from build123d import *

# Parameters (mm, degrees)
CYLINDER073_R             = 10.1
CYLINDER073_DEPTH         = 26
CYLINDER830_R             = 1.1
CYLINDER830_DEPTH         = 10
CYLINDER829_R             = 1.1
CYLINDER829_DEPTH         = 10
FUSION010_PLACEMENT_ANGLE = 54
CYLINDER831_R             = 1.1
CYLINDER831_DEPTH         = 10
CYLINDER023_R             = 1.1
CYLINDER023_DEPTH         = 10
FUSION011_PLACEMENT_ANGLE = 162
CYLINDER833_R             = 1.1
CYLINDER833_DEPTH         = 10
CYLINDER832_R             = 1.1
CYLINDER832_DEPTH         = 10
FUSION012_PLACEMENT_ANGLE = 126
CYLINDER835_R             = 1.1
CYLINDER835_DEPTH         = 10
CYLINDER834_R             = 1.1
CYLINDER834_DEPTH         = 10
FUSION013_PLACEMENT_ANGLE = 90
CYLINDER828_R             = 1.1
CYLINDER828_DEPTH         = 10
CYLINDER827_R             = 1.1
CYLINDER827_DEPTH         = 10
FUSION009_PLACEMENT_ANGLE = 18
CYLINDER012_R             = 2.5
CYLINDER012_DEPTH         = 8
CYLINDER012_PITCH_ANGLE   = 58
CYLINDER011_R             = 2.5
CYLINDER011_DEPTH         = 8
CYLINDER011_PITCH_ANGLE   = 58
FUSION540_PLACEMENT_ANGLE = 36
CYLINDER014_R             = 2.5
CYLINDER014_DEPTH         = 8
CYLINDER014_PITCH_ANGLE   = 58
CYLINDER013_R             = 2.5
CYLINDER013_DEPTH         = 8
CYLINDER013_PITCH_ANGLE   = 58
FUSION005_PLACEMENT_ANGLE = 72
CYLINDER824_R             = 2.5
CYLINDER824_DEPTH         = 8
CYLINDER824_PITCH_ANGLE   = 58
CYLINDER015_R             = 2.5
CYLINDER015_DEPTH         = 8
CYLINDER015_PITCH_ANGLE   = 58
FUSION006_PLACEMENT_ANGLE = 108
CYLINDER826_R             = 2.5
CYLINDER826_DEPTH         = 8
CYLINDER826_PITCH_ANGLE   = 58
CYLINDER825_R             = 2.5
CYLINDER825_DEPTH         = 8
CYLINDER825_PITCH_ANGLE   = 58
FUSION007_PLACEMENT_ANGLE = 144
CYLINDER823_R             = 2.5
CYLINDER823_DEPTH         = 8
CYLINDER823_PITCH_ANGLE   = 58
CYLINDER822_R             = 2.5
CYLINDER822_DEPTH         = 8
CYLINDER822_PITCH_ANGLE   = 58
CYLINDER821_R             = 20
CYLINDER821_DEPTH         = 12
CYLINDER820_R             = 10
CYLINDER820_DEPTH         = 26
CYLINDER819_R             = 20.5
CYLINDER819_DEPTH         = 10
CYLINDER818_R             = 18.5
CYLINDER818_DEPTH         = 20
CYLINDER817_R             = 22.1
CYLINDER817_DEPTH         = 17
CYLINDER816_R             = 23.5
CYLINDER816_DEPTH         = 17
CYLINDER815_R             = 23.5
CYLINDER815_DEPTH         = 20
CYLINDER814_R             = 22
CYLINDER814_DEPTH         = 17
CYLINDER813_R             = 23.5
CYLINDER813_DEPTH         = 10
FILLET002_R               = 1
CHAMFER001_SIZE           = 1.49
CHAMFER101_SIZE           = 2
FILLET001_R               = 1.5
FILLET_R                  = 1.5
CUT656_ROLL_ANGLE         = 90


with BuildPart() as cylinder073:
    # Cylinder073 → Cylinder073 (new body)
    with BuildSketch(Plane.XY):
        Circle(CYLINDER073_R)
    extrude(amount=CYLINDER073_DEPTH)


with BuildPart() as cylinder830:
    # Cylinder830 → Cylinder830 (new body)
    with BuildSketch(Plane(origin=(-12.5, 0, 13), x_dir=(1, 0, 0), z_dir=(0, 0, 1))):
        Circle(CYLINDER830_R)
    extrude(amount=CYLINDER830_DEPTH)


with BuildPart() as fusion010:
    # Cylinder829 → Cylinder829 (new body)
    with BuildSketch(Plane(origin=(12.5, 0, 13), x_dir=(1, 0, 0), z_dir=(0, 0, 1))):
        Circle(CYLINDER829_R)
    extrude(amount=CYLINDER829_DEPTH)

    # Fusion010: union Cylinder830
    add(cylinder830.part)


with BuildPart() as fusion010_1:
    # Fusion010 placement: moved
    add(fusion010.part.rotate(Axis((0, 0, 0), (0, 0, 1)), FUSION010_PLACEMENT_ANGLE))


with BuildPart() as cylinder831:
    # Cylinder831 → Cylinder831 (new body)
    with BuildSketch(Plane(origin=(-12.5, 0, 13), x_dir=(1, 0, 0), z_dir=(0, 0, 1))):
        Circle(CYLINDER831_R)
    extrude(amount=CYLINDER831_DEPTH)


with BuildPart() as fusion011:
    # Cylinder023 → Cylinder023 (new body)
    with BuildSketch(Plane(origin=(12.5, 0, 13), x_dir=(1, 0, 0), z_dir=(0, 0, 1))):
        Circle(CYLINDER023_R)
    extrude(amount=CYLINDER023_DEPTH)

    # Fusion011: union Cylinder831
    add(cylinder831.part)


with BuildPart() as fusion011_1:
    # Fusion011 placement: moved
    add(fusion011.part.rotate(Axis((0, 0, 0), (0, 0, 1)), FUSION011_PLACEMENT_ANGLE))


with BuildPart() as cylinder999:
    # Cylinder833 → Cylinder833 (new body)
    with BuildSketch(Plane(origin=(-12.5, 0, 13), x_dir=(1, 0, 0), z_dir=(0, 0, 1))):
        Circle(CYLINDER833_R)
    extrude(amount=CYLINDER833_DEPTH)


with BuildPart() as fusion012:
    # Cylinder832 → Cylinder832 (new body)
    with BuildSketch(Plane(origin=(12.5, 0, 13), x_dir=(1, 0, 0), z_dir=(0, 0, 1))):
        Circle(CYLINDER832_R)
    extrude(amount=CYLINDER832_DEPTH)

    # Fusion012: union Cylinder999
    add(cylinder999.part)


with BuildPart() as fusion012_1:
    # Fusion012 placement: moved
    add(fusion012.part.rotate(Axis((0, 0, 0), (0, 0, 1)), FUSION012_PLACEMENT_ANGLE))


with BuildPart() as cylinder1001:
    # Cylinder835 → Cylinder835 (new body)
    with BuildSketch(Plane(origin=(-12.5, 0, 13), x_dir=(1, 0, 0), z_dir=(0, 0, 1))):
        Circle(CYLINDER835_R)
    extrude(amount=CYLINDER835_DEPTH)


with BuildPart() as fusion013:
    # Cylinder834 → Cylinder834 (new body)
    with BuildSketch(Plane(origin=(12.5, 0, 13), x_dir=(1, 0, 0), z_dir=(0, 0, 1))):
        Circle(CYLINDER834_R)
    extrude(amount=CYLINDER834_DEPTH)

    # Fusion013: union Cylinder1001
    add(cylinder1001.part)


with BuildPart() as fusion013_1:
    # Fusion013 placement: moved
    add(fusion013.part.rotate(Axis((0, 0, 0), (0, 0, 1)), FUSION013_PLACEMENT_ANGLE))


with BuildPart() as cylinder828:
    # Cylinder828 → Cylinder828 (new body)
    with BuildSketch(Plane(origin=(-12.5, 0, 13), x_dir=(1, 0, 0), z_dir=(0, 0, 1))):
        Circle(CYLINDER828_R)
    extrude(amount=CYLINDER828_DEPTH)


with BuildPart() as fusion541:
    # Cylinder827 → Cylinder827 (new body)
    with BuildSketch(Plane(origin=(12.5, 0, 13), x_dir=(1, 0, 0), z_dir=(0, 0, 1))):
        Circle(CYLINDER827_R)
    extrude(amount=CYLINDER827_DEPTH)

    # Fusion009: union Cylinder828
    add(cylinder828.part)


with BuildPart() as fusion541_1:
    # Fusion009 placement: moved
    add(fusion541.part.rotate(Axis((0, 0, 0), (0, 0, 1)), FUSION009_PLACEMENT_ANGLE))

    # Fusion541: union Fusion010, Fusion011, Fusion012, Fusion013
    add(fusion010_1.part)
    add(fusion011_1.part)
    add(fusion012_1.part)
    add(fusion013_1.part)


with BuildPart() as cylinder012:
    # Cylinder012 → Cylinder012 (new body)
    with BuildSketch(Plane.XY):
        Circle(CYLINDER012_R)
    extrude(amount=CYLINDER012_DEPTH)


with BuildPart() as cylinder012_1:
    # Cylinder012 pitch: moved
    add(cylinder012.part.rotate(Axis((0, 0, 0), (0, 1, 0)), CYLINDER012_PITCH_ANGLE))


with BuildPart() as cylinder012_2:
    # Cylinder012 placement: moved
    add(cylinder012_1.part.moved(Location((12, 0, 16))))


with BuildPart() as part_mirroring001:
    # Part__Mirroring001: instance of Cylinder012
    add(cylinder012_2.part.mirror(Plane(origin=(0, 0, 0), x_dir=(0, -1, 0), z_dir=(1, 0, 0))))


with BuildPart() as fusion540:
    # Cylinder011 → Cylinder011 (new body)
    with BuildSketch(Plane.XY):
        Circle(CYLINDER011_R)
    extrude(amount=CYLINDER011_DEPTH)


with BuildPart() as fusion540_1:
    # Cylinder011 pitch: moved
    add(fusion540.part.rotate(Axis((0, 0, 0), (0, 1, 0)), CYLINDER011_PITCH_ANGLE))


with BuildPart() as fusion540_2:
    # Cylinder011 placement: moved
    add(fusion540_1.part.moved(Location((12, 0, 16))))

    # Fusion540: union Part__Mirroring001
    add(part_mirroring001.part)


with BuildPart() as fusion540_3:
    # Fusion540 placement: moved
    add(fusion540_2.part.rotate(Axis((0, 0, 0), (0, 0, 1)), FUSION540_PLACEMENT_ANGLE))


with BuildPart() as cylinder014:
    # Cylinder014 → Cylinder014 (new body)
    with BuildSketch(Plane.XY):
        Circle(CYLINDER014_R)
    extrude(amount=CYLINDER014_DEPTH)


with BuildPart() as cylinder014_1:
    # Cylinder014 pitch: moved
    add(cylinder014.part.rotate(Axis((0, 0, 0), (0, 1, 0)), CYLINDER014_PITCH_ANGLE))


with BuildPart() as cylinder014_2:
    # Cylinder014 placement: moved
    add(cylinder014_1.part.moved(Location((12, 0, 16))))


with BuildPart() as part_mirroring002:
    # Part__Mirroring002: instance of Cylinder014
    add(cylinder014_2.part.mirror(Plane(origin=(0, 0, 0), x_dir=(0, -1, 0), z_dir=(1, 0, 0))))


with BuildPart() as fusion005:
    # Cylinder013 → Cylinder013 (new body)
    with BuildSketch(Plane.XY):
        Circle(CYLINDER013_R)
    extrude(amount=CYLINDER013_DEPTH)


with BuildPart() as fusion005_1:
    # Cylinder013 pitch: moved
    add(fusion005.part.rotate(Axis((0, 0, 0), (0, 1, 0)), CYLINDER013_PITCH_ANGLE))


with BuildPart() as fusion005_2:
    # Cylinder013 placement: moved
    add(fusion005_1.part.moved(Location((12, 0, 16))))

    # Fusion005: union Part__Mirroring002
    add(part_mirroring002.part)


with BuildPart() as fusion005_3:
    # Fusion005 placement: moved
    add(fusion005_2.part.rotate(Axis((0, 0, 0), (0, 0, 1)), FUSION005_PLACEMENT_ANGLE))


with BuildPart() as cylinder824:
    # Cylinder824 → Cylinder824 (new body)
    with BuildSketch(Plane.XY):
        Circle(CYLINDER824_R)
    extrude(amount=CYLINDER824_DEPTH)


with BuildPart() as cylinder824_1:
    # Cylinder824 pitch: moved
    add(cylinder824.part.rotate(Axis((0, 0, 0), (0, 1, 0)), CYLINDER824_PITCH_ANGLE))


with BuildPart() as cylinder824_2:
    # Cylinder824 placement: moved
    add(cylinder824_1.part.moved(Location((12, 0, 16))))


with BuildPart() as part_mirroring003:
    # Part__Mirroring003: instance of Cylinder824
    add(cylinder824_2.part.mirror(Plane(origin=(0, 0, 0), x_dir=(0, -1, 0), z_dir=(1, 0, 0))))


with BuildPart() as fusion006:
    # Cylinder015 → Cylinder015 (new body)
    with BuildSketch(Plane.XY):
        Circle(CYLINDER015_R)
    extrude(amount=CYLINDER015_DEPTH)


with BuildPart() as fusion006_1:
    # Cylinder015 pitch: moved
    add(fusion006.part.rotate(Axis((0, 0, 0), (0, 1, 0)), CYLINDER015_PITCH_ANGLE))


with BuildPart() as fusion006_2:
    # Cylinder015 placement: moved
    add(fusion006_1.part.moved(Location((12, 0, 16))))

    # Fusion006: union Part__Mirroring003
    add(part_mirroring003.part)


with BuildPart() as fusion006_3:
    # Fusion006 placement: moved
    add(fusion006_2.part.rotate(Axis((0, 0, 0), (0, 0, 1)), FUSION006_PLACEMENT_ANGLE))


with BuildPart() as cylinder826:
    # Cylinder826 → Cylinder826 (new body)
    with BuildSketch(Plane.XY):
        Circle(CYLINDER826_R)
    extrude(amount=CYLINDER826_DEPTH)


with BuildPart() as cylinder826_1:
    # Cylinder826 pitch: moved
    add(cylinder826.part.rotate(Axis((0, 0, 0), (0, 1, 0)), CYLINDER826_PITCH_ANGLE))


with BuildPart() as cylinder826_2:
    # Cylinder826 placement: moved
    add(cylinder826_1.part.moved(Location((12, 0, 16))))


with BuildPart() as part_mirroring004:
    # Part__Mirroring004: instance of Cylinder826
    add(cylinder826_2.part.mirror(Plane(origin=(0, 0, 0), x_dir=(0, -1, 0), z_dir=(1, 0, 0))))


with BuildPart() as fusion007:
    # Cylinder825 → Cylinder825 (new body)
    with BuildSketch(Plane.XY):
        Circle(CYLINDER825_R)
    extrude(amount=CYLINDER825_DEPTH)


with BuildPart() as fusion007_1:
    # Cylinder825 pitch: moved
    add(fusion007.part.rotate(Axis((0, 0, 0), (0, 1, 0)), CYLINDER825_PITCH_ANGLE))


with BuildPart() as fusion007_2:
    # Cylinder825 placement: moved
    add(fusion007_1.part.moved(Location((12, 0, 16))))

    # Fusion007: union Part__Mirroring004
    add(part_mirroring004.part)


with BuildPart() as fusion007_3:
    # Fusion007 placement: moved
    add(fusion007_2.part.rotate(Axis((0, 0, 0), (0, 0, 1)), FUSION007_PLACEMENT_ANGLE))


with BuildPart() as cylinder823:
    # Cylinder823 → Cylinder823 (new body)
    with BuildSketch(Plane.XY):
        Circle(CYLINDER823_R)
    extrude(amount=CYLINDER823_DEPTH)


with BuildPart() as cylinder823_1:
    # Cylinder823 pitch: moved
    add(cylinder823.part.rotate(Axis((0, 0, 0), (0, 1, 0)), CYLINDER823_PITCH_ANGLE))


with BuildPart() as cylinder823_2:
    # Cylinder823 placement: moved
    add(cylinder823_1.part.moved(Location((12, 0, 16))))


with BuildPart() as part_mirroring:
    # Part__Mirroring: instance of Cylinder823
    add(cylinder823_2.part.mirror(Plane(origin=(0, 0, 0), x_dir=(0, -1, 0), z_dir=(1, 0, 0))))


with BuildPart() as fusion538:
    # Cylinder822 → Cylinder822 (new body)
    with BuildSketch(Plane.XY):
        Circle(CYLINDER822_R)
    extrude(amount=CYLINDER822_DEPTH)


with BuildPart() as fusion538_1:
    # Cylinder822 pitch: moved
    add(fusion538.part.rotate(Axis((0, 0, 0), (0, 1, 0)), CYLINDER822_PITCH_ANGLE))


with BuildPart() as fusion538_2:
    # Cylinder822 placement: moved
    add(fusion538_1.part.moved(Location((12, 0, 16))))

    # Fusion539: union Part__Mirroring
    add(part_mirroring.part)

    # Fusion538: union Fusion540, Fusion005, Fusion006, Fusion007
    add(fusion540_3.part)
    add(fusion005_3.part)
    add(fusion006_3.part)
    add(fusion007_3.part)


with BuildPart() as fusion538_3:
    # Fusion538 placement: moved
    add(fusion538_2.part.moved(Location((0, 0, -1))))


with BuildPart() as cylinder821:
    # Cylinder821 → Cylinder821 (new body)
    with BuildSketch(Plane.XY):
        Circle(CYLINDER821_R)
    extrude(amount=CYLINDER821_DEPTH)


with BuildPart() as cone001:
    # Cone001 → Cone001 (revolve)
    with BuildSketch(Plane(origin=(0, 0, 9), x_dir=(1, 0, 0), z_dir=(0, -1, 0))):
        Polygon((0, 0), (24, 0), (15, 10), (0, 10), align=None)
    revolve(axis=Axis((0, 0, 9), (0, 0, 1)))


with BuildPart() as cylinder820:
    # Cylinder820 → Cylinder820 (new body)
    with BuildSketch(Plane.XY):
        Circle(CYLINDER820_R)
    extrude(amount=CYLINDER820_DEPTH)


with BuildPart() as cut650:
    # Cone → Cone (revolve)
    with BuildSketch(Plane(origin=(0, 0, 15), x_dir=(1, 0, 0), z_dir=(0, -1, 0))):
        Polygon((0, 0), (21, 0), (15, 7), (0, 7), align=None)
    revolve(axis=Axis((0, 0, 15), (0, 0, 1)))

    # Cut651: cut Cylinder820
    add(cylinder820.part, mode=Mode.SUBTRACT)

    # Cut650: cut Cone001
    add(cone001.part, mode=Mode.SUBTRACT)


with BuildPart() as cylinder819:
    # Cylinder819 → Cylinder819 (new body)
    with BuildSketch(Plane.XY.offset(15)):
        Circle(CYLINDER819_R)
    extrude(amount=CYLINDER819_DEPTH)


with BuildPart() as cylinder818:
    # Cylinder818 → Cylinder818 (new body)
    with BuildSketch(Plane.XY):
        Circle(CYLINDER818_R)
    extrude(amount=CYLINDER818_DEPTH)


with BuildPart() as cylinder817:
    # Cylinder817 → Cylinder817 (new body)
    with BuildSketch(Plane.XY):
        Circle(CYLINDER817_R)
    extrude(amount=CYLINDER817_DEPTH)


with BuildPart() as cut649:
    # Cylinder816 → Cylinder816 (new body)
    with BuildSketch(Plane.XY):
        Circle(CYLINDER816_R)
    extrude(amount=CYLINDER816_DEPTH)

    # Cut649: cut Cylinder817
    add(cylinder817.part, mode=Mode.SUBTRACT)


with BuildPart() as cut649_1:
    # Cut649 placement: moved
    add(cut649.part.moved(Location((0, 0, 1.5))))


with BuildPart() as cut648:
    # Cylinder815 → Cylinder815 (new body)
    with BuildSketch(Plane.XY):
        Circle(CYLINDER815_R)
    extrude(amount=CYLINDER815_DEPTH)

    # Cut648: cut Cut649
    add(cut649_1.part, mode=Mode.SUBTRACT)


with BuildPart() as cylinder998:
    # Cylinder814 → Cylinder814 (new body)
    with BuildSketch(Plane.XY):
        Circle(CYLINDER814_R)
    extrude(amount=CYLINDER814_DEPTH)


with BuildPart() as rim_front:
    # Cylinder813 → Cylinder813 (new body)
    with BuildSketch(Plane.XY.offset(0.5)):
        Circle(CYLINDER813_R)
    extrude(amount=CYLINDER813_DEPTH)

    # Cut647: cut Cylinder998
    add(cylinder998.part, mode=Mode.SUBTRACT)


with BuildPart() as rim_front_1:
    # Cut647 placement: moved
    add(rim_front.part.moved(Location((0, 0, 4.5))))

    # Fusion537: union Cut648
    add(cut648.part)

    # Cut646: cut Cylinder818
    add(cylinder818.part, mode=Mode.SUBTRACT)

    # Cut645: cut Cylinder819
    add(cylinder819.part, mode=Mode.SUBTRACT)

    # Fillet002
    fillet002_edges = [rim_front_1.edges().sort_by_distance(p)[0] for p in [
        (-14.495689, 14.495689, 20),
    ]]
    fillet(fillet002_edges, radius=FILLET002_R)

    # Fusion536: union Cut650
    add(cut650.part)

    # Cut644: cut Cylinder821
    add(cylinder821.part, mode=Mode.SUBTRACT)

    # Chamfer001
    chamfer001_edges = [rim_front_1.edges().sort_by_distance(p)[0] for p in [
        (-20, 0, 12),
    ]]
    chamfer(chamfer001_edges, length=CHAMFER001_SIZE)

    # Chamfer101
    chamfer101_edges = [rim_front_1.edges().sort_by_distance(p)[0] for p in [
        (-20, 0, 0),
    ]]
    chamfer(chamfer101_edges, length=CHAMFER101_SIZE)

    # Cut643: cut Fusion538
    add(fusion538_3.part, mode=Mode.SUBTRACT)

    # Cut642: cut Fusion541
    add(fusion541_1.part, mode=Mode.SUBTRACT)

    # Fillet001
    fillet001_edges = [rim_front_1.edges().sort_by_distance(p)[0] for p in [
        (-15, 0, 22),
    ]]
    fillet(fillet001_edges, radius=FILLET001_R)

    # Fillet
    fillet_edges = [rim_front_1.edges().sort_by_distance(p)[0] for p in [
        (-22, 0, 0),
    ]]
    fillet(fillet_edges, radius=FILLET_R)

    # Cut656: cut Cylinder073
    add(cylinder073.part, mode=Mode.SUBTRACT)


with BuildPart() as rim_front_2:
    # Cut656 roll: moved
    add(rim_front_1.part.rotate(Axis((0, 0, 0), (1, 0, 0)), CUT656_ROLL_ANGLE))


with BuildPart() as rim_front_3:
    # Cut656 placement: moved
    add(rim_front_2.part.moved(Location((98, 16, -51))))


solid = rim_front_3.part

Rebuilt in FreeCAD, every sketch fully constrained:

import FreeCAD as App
import Part
import Sketcher

V = App.Vector


def edges_at(feature, points):
    """Names of the edges that pass closest to the given points."""
    edges = feature.Shape.Edges
    near = lambda p: min(range(len(edges)), key=lambda i: edges[i].distToShape(Part.Vertex(*p))[0])
    return sorted({f"Edge{near(p) + 1}" for p in points})


def add_polygon(sketch, points):
    """Adds a closed chain of lines whose ends are joined by coincident constraints."""
    first, n = sketch.GeometryCount, len(points)
    for a, b in zip(points, points[1:] + points[:1]):
        sketch.addGeometry(Part.LineSegment(App.Vector(*a, 0), App.Vector(*b, 0)), False)
    for i in range(n):
        sketch.addConstraint(Sketcher.Constraint("Coincident", first + i, 2, first + (i + 1) % n, 1))

doc = App.newDocument("Part")
body = doc.addObject("PartDesign::Body", "Body")

# Sketch on XY plane
sketch1 = body.newObject("Sketcher::SketchObject", "Sketch")
sketch1.AttachmentSupport = (doc.getObject("XY_Plane"), [""])
sketch1.MapMode = "FlatFace"
sketch1.addGeometry(Part.Circle(V(0, 0, 0), V(0, 0, 1), 10.1), False)
sketch1.addConstraint([
    Sketcher.Constraint("Coincident", 0, 3, -1, 1),
    Sketcher.Constraint("Diameter", 0, 20.2),
])
pad1 = body.newObject("PartDesign::Pad", "Pad")
pad1.Profile = sketch1
pad1.Length = 26
body2 = doc.addObject("PartDesign::Body", "Body001")

# Sketch on XY plane
sketch2 = body2.newObject("Sketcher::SketchObject", "Sketch001")
sketch2.AttachmentSupport = (doc.getObject("XY_Plane001"), [""])
sketch2.MapMode = "FlatFace"
sketch2.AttachmentOffset = App.Placement(V(0, 0, 13), App.Rotation())
sketch2.addGeometry(Part.Circle(V(-12.5, 0, 0), V(0, 0, 1), 1.1), False)
sketch2.addConstraint([
    Sketcher.Constraint("PointOnObject", 0, 3, -1),
    Sketcher.Constraint("Diameter", 0, 2.2),
    Sketcher.Constraint("DistanceX", 0, 3, -1, 1, 12.5),
])
pad2 = body2.newObject("PartDesign::Pad", "Pad001")
pad2.Profile = sketch2
pad2.Length = 10
body3 = doc.addObject("PartDesign::Body", "Body002")
body3.AllowCompound = True

# Sketch on XY plane
sketch3 = body3.newObject("Sketcher::SketchObject", "Sketch002")
sketch3.AttachmentSupport = (doc.getObject("XY_Plane002"), [""])
sketch3.MapMode = "FlatFace"
sketch3.AttachmentOffset = App.Placement(V(0, 0, 13), App.Rotation())
sketch3.addGeometry(Part.Circle(V(12.5, 0, 0), V(0, 0, 1), 1.1), False)
sketch3.addConstraint([
    Sketcher.Constraint("PointOnObject", 0, 3, -1),
    Sketcher.Constraint("Diameter", 0, 2.2),
    Sketcher.Constraint("DistanceX", -1, 1, 0, 3, 12.5),
])
pad3 = body3.newObject("PartDesign::Pad", "Pad002")
pad3.Profile = sketch3
pad3.Length = 10
doc.recompute()

boolean = body3.newObject("PartDesign::Boolean", "Boolean")
boolean.Type = "Fuse"
boolean.addObjects([body2])
body4 = doc.addObject("PartDesign::Body", "Body003")
body4.AllowCompound = True
doc.recompute()

body3.Placement = App.Placement(V(0, 0, 0), App.Rotation(V(0, 0, 1), 54))
boolean2 = body4.newObject("PartDesign::Boolean", "Boolean001")
boolean2.Type = "Fuse"
boolean2.addObjects([body3])
body5 = doc.addObject("PartDesign::Body", "Body004")

# Sketch on XY plane
sketch4 = body5.newObject("Sketcher::SketchObject", "Sketch003")
sketch4.AttachmentSupport = (doc.getObject("XY_Plane004"), [""])
sketch4.MapMode = "FlatFace"
sketch4.AttachmentOffset = App.Placement(V(0, 0, 13), App.Rotation())
sketch4.addGeometry(Part.Circle(V(-12.5, 0, 0), V(0, 0, 1), 1.1), False)
sketch4.addConstraint([
    Sketcher.Constraint("PointOnObject", 0, 3, -1),
    Sketcher.Constraint("Diameter", 0, 2.2),
    Sketcher.Constraint("DistanceX", 0, 3, -1, 1, 12.5),
])
pad4 = body5.newObject("PartDesign::Pad", "Pad003")
pad4.Profile = sketch4
pad4.Length = 10
body6 = doc.addObject("PartDesign::Body", "Body005")
body6.AllowCompound = True

# Sketch on XY plane
sketch5 = body6.newObject("Sketcher::SketchObject", "Sketch004")
sketch5.AttachmentSupport = (doc.getObject("XY_Plane005"), [""])
sketch5.MapMode = "FlatFace"
sketch5.AttachmentOffset = App.Placement(V(0, 0, 13), App.Rotation())
sketch5.addGeometry(Part.Circle(V(12.5, 0, 0), V(0, 0, 1), 1.1), False)
sketch5.addConstraint([
    Sketcher.Constraint("PointOnObject", 0, 3, -1),
    Sketcher.Constraint("Diameter", 0, 2.2),
    Sketcher.Constraint("DistanceX", -1, 1, 0, 3, 12.5),
])
pad5 = body6.newObject("PartDesign::Pad", "Pad004")
pad5.Profile = sketch5
pad5.Length = 10
doc.recompute()

boolean3 = body6.newObject("PartDesign::Boolean", "Boolean002")
boolean3.Type = "Fuse"
boolean3.addObjects([body5])
body7 = doc.addObject("PartDesign::Body", "Body006")
body7.AllowCompound = True
doc.recompute()

body6.Placement = App.Placement(V(0, 0, 0), App.Rotation(V(0, 0, 1), 162))
boolean4 = body7.newObject("PartDesign::Boolean", "Boolean003")
boolean4.Type = "Fuse"
boolean4.addObjects([body6])
body8 = doc.addObject("PartDesign::Body", "Body007")

# Sketch on XY plane
sketch6 = body8.newObject("Sketcher::SketchObject", "Sketch005")
sketch6.AttachmentSupport = (doc.getObject("XY_Plane007"), [""])
sketch6.MapMode = "FlatFace"
sketch6.AttachmentOffset = App.Placement(V(0, 0, 13), App.Rotation())
sketch6.addGeometry(Part.Circle(V(-12.5, 0, 0), V(0, 0, 1), 1.1), False)
sketch6.addConstraint([
    Sketcher.Constraint("PointOnObject", 0, 3, -1),
    Sketcher.Constraint("Diameter", 0, 2.2),
    Sketcher.Constraint("DistanceX", 0, 3, -1, 1, 12.5),
])
pad6 = body8.newObject("PartDesign::Pad", "Pad005")
pad6.Profile = sketch6
pad6.Length = 10
body9 = doc.addObject("PartDesign::Body", "Body008")
body9.AllowCompound = True

# Sketch on XY plane
sketch7 = body9.newObject("Sketcher::SketchObject", "Sketch006")
sketch7.AttachmentSupport = (doc.getObject("XY_Plane008"), [""])
sketch7.MapMode = "FlatFace"
sketch7.AttachmentOffset = App.Placement(V(0, 0, 13), App.Rotation())
sketch7.addGeometry(Part.Circle(V(12.5, 0, 0), V(0, 0, 1), 1.1), False)
sketch7.addConstraint([
    Sketcher.Constraint("PointOnObject", 0, 3, -1),
    Sketcher.Constraint("Diameter", 0, 2.2),
    Sketcher.Constraint("DistanceX", -1, 1, 0, 3, 12.5),
])
pad7 = body9.newObject("PartDesign::Pad", "Pad006")
pad7.Profile = sketch7
pad7.Length = 10
doc.recompute()

boolean5 = body9.newObject("PartDesign::Boolean", "Boolean004")
boolean5.Type = "Fuse"
boolean5.addObjects([body8])
body10 = doc.addObject("PartDesign::Body", "Body009")
body10.AllowCompound = True
doc.recompute()

body9.Placement = App.Placement(V(0, 0, 0), App.Rotation(V(0, 0, 1), 126))
boolean6 = body10.newObject("PartDesign::Boolean", "Boolean005")
boolean6.Type = "Fuse"
boolean6.addObjects([body9])
body11 = doc.addObject("PartDesign::Body", "Body010")

# Sketch on XY plane
sketch8 = body11.newObject("Sketcher::SketchObject", "Sketch007")
sketch8.AttachmentSupport = (doc.getObject("XY_Plane010"), [""])
sketch8.MapMode = "FlatFace"
sketch8.AttachmentOffset = App.Placement(V(0, 0, 13), App.Rotation())
sketch8.addGeometry(Part.Circle(V(-12.5, 0, 0), V(0, 0, 1), 1.1), False)
sketch8.addConstraint([
    Sketcher.Constraint("PointOnObject", 0, 3, -1),
    Sketcher.Constraint("Diameter", 0, 2.2),
    Sketcher.Constraint("DistanceX", 0, 3, -1, 1, 12.5),
])
pad8 = body11.newObject("PartDesign::Pad", "Pad007")
pad8.Profile = sketch8
pad8.Length = 10
body12 = doc.addObject("PartDesign::Body", "Body011")
body12.AllowCompound = True

# Sketch on XY plane
sketch9 = body12.newObject("Sketcher::SketchObject", "Sketch008")
sketch9.AttachmentSupport = (doc.getObject("XY_Plane011"), [""])
sketch9.MapMode = "FlatFace"
sketch9.AttachmentOffset = App.Placement(V(0, 0, 13), App.Rotation())
sketch9.addGeometry(Part.Circle(V(12.5, 0, 0), V(0, 0, 1), 1.1), False)
sketch9.addConstraint([
    Sketcher.Constraint("PointOnObject", 0, 3, -1),
    Sketcher.Constraint("Diameter", 0, 2.2),
    Sketcher.Constraint("DistanceX", -1, 1, 0, 3, 12.5),
])
pad9 = body12.newObject("PartDesign::Pad", "Pad008")
pad9.Profile = sketch9
pad9.Length = 10
doc.recompute()

boolean7 = body12.newObject("PartDesign::Boolean", "Boolean006")
boolean7.Type = "Fuse"
boolean7.addObjects([body11])
body13 = doc.addObject("PartDesign::Body", "Body012")
body13.AllowCompound = True
doc.recompute()

body12.Placement = App.Placement(V(0, 0, 0), App.Rotation(V(0, 0, 1), 90))
boolean8 = body13.newObject("PartDesign::Boolean", "Boolean007")
boolean8.Type = "Fuse"
boolean8.addObjects([body12])
body14 = doc.addObject("PartDesign::Body", "Body013")

# Sketch on XY plane
sketch10 = body14.newObject("Sketcher::SketchObject", "Sketch009")
sketch10.AttachmentSupport = (doc.getObject("XY_Plane013"), [""])
sketch10.MapMode = "FlatFace"
sketch10.AttachmentOffset = App.Placement(V(0, 0, 13), App.Rotation())
sketch10.addGeometry(Part.Circle(V(-12.5, 0, 0), V(0, 0, 1), 1.1), False)
sketch10.addConstraint([
    Sketcher.Constraint("PointOnObject", 0, 3, -1),
    Sketcher.Constraint("Diameter", 0, 2.2),
    Sketcher.Constraint("DistanceX", 0, 3, -1, 1, 12.5),
])
pad10 = body14.newObject("PartDesign::Pad", "Pad009")
pad10.Profile = sketch10
pad10.Length = 10
body15 = doc.addObject("PartDesign::Body", "Body014")
body15.AllowCompound = True

# Sketch on XY plane
sketch11 = body15.newObject("Sketcher::SketchObject", "Sketch010")
sketch11.AttachmentSupport = (doc.getObject("XY_Plane014"), [""])
sketch11.MapMode = "FlatFace"
sketch11.AttachmentOffset = App.Placement(V(0, 0, 13), App.Rotation())
sketch11.addGeometry(Part.Circle(V(12.5, 0, 0), V(0, 0, 1), 1.1), False)
sketch11.addConstraint([
    Sketcher.Constraint("PointOnObject", 0, 3, -1),
    Sketcher.Constraint("Diameter", 0, 2.2),
    Sketcher.Constraint("DistanceX", -1, 1, 0, 3, 12.5),
])
pad11 = body15.newObject("PartDesign::Pad", "Pad010")
pad11.Profile = sketch11
pad11.Length = 10
doc.recompute()

boolean9 = body15.newObject("PartDesign::Boolean", "Boolean008")
boolean9.Type = "Fuse"
boolean9.addObjects([body14])
body16 = doc.addObject("PartDesign::Body", "Body015")
body16.AllowCompound = True
doc.recompute()

body15.Placement = App.Placement(V(0, 0, 0), App.Rotation(V(0, 0, 1), 18))
boolean10 = body16.newObject("PartDesign::Boolean", "Boolean009")
boolean10.Type = "Fuse"
boolean10.addObjects([body15])
doc.recompute()

boolean11 = body16.newObject("PartDesign::Boolean", "Boolean010")
boolean11.Type = "Fuse"
boolean11.addObjects([body4])
doc.recompute()

boolean12 = body16.newObject("PartDesign::Boolean", "Boolean011")
boolean12.Type = "Fuse"
boolean12.addObjects([body7])
doc.recompute()

boolean13 = body16.newObject("PartDesign::Boolean", "Boolean012")
boolean13.Type = "Fuse"
boolean13.addObjects([body10])
doc.recompute()

boolean14 = body16.newObject("PartDesign::Boolean", "Boolean013")
boolean14.Type = "Fuse"
boolean14.addObjects([body13])
body17 = doc.addObject("PartDesign::Body", "Body016")

# Sketch on XY plane
sketch12 = body17.newObject("Sketcher::SketchObject", "Sketch011")
sketch12.AttachmentSupport = (doc.getObject("XY_Plane016"), [""])
sketch12.MapMode = "FlatFace"
sketch12.addGeometry(Part.Circle(V(0, 0, 0), V(0, 0, 1), 2.5), False)
sketch12.addConstraint([
    Sketcher.Constraint("Coincident", 0, 3, -1, 1),
    Sketcher.Constraint("Diameter", 0, 5.0),
])
pad12 = body17.newObject("PartDesign::Pad", "Pad011")
pad12.Profile = sketch12
pad12.Length = 8
body18 = doc.addObject("PartDesign::Body", "Body017")
doc.recompute()

body17.Placement = App.Placement(V(0, 0, 0), App.Rotation(V(0, 1, 0), 58))
boolean15 = body18.newObject("PartDesign::Boolean", "Boolean014")
boolean15.Type = "Fuse"
boolean15.addObjects([body17])
body19 = doc.addObject("PartDesign::Body", "Body018")
doc.recompute()

body18.Placement = App.Placement(V(12, 0, 16), App.Rotation(V(0, 0, 1), 0))
boolean16 = body19.newObject("PartDesign::Boolean", "Boolean015")
boolean16.Type = "Fuse"
boolean16.addObjects([body18])
body20 = doc.addObject("PartDesign::Body", "Body019")
doc.recompute()

mirroring = doc.addObject("Part::Mirroring", "Mirroring")
mirroring.Source = body19
mirroring.Base = V(0, 0, 0)
mirroring.Normal = V(1, 0, 0)
body20.BaseFeature = mirroring
doc.recompute()
body21 = doc.addObject("PartDesign::Body", "Body020")

# Sketch on XY plane
sketch13 = body21.newObject("Sketcher::SketchObject", "Sketch012")
sketch13.AttachmentSupport = (doc.getObject("XY_Plane020"), [""])
sketch13.MapMode = "FlatFace"
sketch13.addGeometry(Part.Circle(V(0, 0, 0), V(0, 0, 1), 2.5), False)
sketch13.addConstraint([
    Sketcher.Constraint("Coincident", 0, 3, -1, 1),
    Sketcher.Constraint("Diameter", 0, 5.0),
])
pad13 = body21.newObject("PartDesign::Pad", "Pad012")
pad13.Profile = sketch13
pad13.Length = 8
body22 = doc.addObject("PartDesign::Body", "Body021")
doc.recompute()

body21.Placement = App.Placement(V(0, 0, 0), App.Rotation(V(0, 1, 0), 58))
boolean17 = body22.newObject("PartDesign::Boolean", "Boolean016")
boolean17.Type = "Fuse"
boolean17.addObjects([body21])
body23 = doc.addObject("PartDesign::Body", "Body022")
body23.AllowCompound = True
doc.recompute()

body22.Placement = App.Placement(V(12, 0, 16), App.Rotation(V(0, 0, 1), 0))
boolean18 = body23.newObject("PartDesign::Boolean", "Boolean017")
boolean18.Type = "Fuse"
boolean18.addObjects([body22])
doc.recompute()

boolean19 = body23.newObject("PartDesign::Boolean", "Boolean018")
boolean19.Type = "Fuse"
boolean19.addObjects([body20])
body24 = doc.addObject("PartDesign::Body", "Body023")
body24.AllowCompound = True
doc.recompute()

body23.Placement = App.Placement(V(0, 0, 0), App.Rotation(V(0, 0, 1), 36))
boolean20 = body24.newObject("PartDesign::Boolean", "Boolean019")
boolean20.Type = "Fuse"
boolean20.addObjects([body23])
body25 = doc.addObject("PartDesign::Body", "Body024")

# Sketch on XY plane
sketch14 = body25.newObject("Sketcher::SketchObject", "Sketch013")
sketch14.AttachmentSupport = (doc.getObject("XY_Plane024"), [""])
sketch14.MapMode = "FlatFace"
sketch14.addGeometry(Part.Circle(V(0, 0, 0), V(0, 0, 1), 2.5), False)
sketch14.addConstraint([
    Sketcher.Constraint("Coincident", 0, 3, -1, 1),
    Sketcher.Constraint("Diameter", 0, 5.0),
])
pad14 = body25.newObject("PartDesign::Pad", "Pad013")
pad14.Profile = sketch14
pad14.Length = 8
body26 = doc.addObject("PartDesign::Body", "Body025")
doc.recompute()

body25.Placement = App.Placement(V(0, 0, 0), App.Rotation(V(0, 1, 0), 58))
boolean21 = body26.newObject("PartDesign::Boolean", "Boolean020")
boolean21.Type = "Fuse"
boolean21.addObjects([body25])
body27 = doc.addObject("PartDesign::Body", "Body026")
doc.recompute()

body26.Placement = App.Placement(V(12, 0, 16), App.Rotation(V(0, 0, 1), 0))
boolean22 = body27.newObject("PartDesign::Boolean", "Boolean021")
boolean22.Type = "Fuse"
boolean22.addObjects([body26])
body28 = doc.addObject("PartDesign::Body", "Body027")
doc.recompute()

mirroring2 = doc.addObject("Part::Mirroring", "Mirroring001")
mirroring2.Source = body27
mirroring2.Base = V(0, 0, 0)
mirroring2.Normal = V(1, 0, 0)
body28.BaseFeature = mirroring2
doc.recompute()
body29 = doc.addObject("PartDesign::Body", "Body028")

# Sketch on XY plane
sketch15 = body29.newObject("Sketcher::SketchObject", "Sketch014")
sketch15.AttachmentSupport = (doc.getObject("XY_Plane028"), [""])
sketch15.MapMode = "FlatFace"
sketch15.addGeometry(Part.Circle(V(0, 0, 0), V(0, 0, 1), 2.5), False)
sketch15.addConstraint([
    Sketcher.Constraint("Coincident", 0, 3, -1, 1),
    Sketcher.Constraint("Diameter", 0, 5.0),
])
pad15 = body29.newObject("PartDesign::Pad", "Pad014")
pad15.Profile = sketch15
pad15.Length = 8
body30 = doc.addObject("PartDesign::Body", "Body029")
doc.recompute()

body29.Placement = App.Placement(V(0, 0, 0), App.Rotation(V(0, 1, 0), 58))
boolean23 = body30.newObject("PartDesign::Boolean", "Boolean022")
boolean23.Type = "Fuse"
boolean23.addObjects([body29])
body31 = doc.addObject("PartDesign::Body", "Body030")
body31.AllowCompound = True
doc.recompute()

body30.Placement = App.Placement(V(12, 0, 16), App.Rotation(V(0, 0, 1), 0))
boolean24 = body31.newObject("PartDesign::Boolean", "Boolean023")
boolean24.Type = "Fuse"
boolean24.addObjects([body30])
doc.recompute()

boolean25 = body31.newObject("PartDesign::Boolean", "Boolean024")
boolean25.Type = "Fuse"
boolean25.addObjects([body28])
body32 = doc.addObject("PartDesign::Body", "Body031")
body32.AllowCompound = True
doc.recompute()

body31.Placement = App.Placement(V(0, 0, 0), App.Rotation(V(0, 0, 1), 72))
boolean26 = body32.newObject("PartDesign::Boolean", "Boolean025")
boolean26.Type = "Fuse"
boolean26.addObjects([body31])
body33 = doc.addObject("PartDesign::Body", "Body032")

# Sketch on XY plane
sketch16 = body33.newObject("Sketcher::SketchObject", "Sketch015")
sketch16.AttachmentSupport = (doc.getObject("XY_Plane032"), [""])
sketch16.MapMode = "FlatFace"
sketch16.addGeometry(Part.Circle(V(0, 0, 0), V(0, 0, 1), 2.5), False)
sketch16.addConstraint([
    Sketcher.Constraint("Coincident", 0, 3, -1, 1),
    Sketcher.Constraint("Diameter", 0, 5.0),
])
pad16 = body33.newObject("PartDesign::Pad", "Pad015")
pad16.Profile = sketch16
pad16.Length = 8
body34 = doc.addObject("PartDesign::Body", "Body033")
doc.recompute()

body33.Placement = App.Placement(V(0, 0, 0), App.Rotation(V(0, 1, 0), 58))
boolean27 = body34.newObject("PartDesign::Boolean", "Boolean026")
boolean27.Type = "Fuse"
boolean27.addObjects([body33])
body35 = doc.addObject("PartDesign::Body", "Body034")
doc.recompute()

body34.Placement = App.Placement(V(12, 0, 16), App.Rotation(V(0, 0, 1), 0))
boolean28 = body35.newObject("PartDesign::Boolean", "Boolean027")
boolean28.Type = "Fuse"
boolean28.addObjects([body34])
body36 = doc.addObject("PartDesign::Body", "Body035")
doc.recompute()

mirroring3 = doc.addObject("Part::Mirroring", "Mirroring002")
mirroring3.Source = body35
mirroring3.Base = V(0, 0, 0)
mirroring3.Normal = V(1, 0, 0)
body36.BaseFeature = mirroring3
doc.recompute()
body37 = doc.addObject("PartDesign::Body", "Body036")

# Sketch on XY plane
sketch17 = body37.newObject("Sketcher::SketchObject", "Sketch016")
sketch17.AttachmentSupport = (doc.getObject("XY_Plane036"), [""])
sketch17.MapMode = "FlatFace"
sketch17.addGeometry(Part.Circle(V(0, 0, 0), V(0, 0, 1), 2.5), False)
sketch17.addConstraint([
    Sketcher.Constraint("Coincident", 0, 3, -1, 1),
    Sketcher.Constraint("Diameter", 0, 5.0),
])
pad17 = body37.newObject("PartDesign::Pad", "Pad016")
pad17.Profile = sketch17
pad17.Length = 8
body38 = doc.addObject("PartDesign::Body", "Body037")
doc.recompute()

body37.Placement = App.Placement(V(0, 0, 0), App.Rotation(V(0, 1, 0), 58))
boolean29 = body38.newObject("PartDesign::Boolean", "Boolean028")
boolean29.Type = "Fuse"
boolean29.addObjects([body37])
body39 = doc.addObject("PartDesign::Body", "Body038")
body39.AllowCompound = True
doc.recompute()

body38.Placement = App.Placement(V(12, 0, 16), App.Rotation(V(0, 0, 1), 0))
boolean30 = body39.newObject("PartDesign::Boolean", "Boolean029")
boolean30.Type = "Fuse"
boolean30.addObjects([body38])
doc.recompute()

boolean31 = body39.newObject("PartDesign::Boolean", "Boolean030")
boolean31.Type = "Fuse"
boolean31.addObjects([body36])
body40 = doc.addObject("PartDesign::Body", "Body039")
body40.AllowCompound = True
doc.recompute()

body39.Placement = App.Placement(V(0, 0, 0), App.Rotation(V(0, 0, 1), 108))
boolean32 = body40.newObject("PartDesign::Boolean", "Boolean031")
boolean32.Type = "Fuse"
boolean32.addObjects([body39])
body41 = doc.addObject("PartDesign::Body", "Body040")

# Sketch on XY plane
sketch18 = body41.newObject("Sketcher::SketchObject", "Sketch017")
sketch18.AttachmentSupport = (doc.getObject("XY_Plane040"), [""])
sketch18.MapMode = "FlatFace"
sketch18.addGeometry(Part.Circle(V(0, 0, 0), V(0, 0, 1), 2.5), False)
sketch18.addConstraint([
    Sketcher.Constraint("Coincident", 0, 3, -1, 1),
    Sketcher.Constraint("Diameter", 0, 5.0),
])
pad18 = body41.newObject("PartDesign::Pad", "Pad017")
pad18.Profile = sketch18
pad18.Length = 8
body42 = doc.addObject("PartDesign::Body", "Body041")
doc.recompute()

body41.Placement = App.Placement(V(0, 0, 0), App.Rotation(V(0, 1, 0), 58))
boolean33 = body42.newObject("PartDesign::Boolean", "Boolean032")
boolean33.Type = "Fuse"
boolean33.addObjects([body41])
body43 = doc.addObject("PartDesign::Body", "Body042")
doc.recompute()

body42.Placement = App.Placement(V(12, 0, 16), App.Rotation(V(0, 0, 1), 0))
boolean34 = body43.newObject("PartDesign::Boolean", "Boolean033")
boolean34.Type = "Fuse"
boolean34.addObjects([body42])
body44 = doc.addObject("PartDesign::Body", "Body043")
doc.recompute()

mirroring4 = doc.addObject("Part::Mirroring", "Mirroring003")
mirroring4.Source = body43
mirroring4.Base = V(0, 0, 0)
mirroring4.Normal = V(1, 0, 0)
body44.BaseFeature = mirroring4
doc.recompute()
body45 = doc.addObject("PartDesign::Body", "Body044")

# Sketch on XY plane
sketch19 = body45.newObject("Sketcher::SketchObject", "Sketch018")
sketch19.AttachmentSupport = (doc.getObject("XY_Plane044"), [""])
sketch19.MapMode = "FlatFace"
sketch19.addGeometry(Part.Circle(V(0, 0, 0), V(0, 0, 1), 2.5), False)
sketch19.addConstraint([
    Sketcher.Constraint("Coincident", 0, 3, -1, 1),
    Sketcher.Constraint("Diameter", 0, 5.0),
])
pad19 = body45.newObject("PartDesign::Pad", "Pad018")
pad19.Profile = sketch19
pad19.Length = 8
body46 = doc.addObject("PartDesign::Body", "Body045")
doc.recompute()

body45.Placement = App.Placement(V(0, 0, 0), App.Rotation(V(0, 1, 0), 58))
boolean35 = body46.newObject("PartDesign::Boolean", "Boolean034")
boolean35.Type = "Fuse"
boolean35.addObjects([body45])
body47 = doc.addObject("PartDesign::Body", "Body046")
body47.AllowCompound = True
doc.recompute()

body46.Placement = App.Placement(V(12, 0, 16), App.Rotation(V(0, 0, 1), 0))
boolean36 = body47.newObject("PartDesign::Boolean", "Boolean035")
boolean36.Type = "Fuse"
boolean36.addObjects([body46])
doc.recompute()

boolean37 = body47.newObject("PartDesign::Boolean", "Boolean036")
boolean37.Type = "Fuse"
boolean37.addObjects([body44])
body48 = doc.addObject("PartDesign::Body", "Body047")
body48.AllowCompound = True
doc.recompute()

body47.Placement = App.Placement(V(0, 0, 0), App.Rotation(V(0, 0, 1), 144))
boolean38 = body48.newObject("PartDesign::Boolean", "Boolean037")
boolean38.Type = "Fuse"
boolean38.addObjects([body47])
body49 = doc.addObject("PartDesign::Body", "Body048")

# Sketch on XY plane
sketch20 = body49.newObject("Sketcher::SketchObject", "Sketch019")
sketch20.AttachmentSupport = (doc.getObject("XY_Plane048"), [""])
sketch20.MapMode = "FlatFace"
sketch20.addGeometry(Part.Circle(V(0, 0, 0), V(0, 0, 1), 2.5), False)
sketch20.addConstraint([
    Sketcher.Constraint("Coincident", 0, 3, -1, 1),
    Sketcher.Constraint("Diameter", 0, 5.0),
])
pad20 = body49.newObject("PartDesign::Pad", "Pad019")
pad20.Profile = sketch20
pad20.Length = 8
body50 = doc.addObject("PartDesign::Body", "Body049")
doc.recompute()

body49.Placement = App.Placement(V(0, 0, 0), App.Rotation(V(0, 1, 0), 58))
boolean39 = body50.newObject("PartDesign::Boolean", "Boolean038")
boolean39.Type = "Fuse"
boolean39.addObjects([body49])
body51 = doc.addObject("PartDesign::Body", "Body050")
doc.recompute()

body50.Placement = App.Placement(V(12, 0, 16), App.Rotation(V(0, 0, 1), 0))
boolean40 = body51.newObject("PartDesign::Boolean", "Boolean039")
boolean40.Type = "Fuse"
boolean40.addObjects([body50])
body52 = doc.addObject("PartDesign::Body", "Body051")
doc.recompute()

mirroring5 = doc.addObject("Part::Mirroring", "Mirroring004")
mirroring5.Source = body51
mirroring5.Base = V(0, 0, 0)
mirroring5.Normal = V(1, 0, 0)
body52.BaseFeature = mirroring5
doc.recompute()
body53 = doc.addObject("PartDesign::Body", "Body052")

# Sketch on XY plane
sketch21 = body53.newObject("Sketcher::SketchObject", "Sketch020")
sketch21.AttachmentSupport = (doc.getObject("XY_Plane052"), [""])
sketch21.MapMode = "FlatFace"
sketch21.addGeometry(Part.Circle(V(0, 0, 0), V(0, 0, 1), 2.5), False)
sketch21.addConstraint([
    Sketcher.Constraint("Coincident", 0, 3, -1, 1),
    Sketcher.Constraint("Diameter", 0, 5.0),
])
pad21 = body53.newObject("PartDesign::Pad", "Pad020")
pad21.Profile = sketch21
pad21.Length = 8
body54 = doc.addObject("PartDesign::Body", "Body053")
doc.recompute()

body53.Placement = App.Placement(V(0, 0, 0), App.Rotation(V(0, 1, 0), 58))
boolean41 = body54.newObject("PartDesign::Boolean", "Boolean040")
boolean41.Type = "Fuse"
boolean41.addObjects([body53])
body55 = doc.addObject("PartDesign::Body", "Body054")
body55.AllowCompound = True
doc.recompute()

body54.Placement = App.Placement(V(12, 0, 16), App.Rotation(V(0, 0, 1), 0))
boolean42 = body55.newObject("PartDesign::Boolean", "Boolean041")
boolean42.Type = "Fuse"
boolean42.addObjects([body54])
doc.recompute()

boolean43 = body55.newObject("PartDesign::Boolean", "Boolean042")
boolean43.Type = "Fuse"
boolean43.addObjects([body52])
doc.recompute()

boolean44 = body55.newObject("PartDesign::Boolean", "Boolean043")
boolean44.Type = "Fuse"
boolean44.addObjects([body24])
doc.recompute()

boolean45 = body55.newObject("PartDesign::Boolean", "Boolean044")
boolean45.Type = "Fuse"
boolean45.addObjects([body32])
doc.recompute()

boolean46 = body55.newObject("PartDesign::Boolean", "Boolean045")
boolean46.Type = "Fuse"
boolean46.addObjects([body40])
doc.recompute()

boolean47 = body55.newObject("PartDesign::Boolean", "Boolean046")
boolean47.Type = "Fuse"
boolean47.addObjects([body48])
body56 = doc.addObject("PartDesign::Body", "Body055")
body56.AllowCompound = True
doc.recompute()

body55.Placement = App.Placement(V(0, 0, -1), App.Rotation(V(0, 0, 1), 0))
boolean48 = body56.newObject("PartDesign::Boolean", "Boolean047")
boolean48.Type = "Fuse"
boolean48.addObjects([body55])
body57 = doc.addObject("PartDesign::Body", "Body056")

# Sketch on XY plane
sketch22 = body57.newObject("Sketcher::SketchObject", "Sketch021")
sketch22.AttachmentSupport = (doc.getObject("XY_Plane056"), [""])
sketch22.MapMode = "FlatFace"
sketch22.addGeometry(Part.Circle(V(0, 0, 0), V(0, 0, 1), 20), False)
sketch22.addConstraint([
    Sketcher.Constraint("Coincident", 0, 3, -1, 1),
    Sketcher.Constraint("Diameter", 0, 40.0),
])
pad22 = body57.newObject("PartDesign::Pad", "Pad021")
pad22.Profile = sketch22
pad22.Length = 12
body58 = doc.addObject("PartDesign::Body", "Body057")

# Sketch on XZ plane
sketch23 = body58.newObject("Sketcher::SketchObject", "Sketch022")
sketch23.AttachmentSupport = (doc.getObject("XZ_Plane057"), [""])
sketch23.MapMode = "FlatFace"
add_polygon(sketch23, [(0, 9), (24, 9), (15, 19), (0, 19)])  # lines 0-3
sketch23.addConstraint([
    Sketcher.Constraint("Horizontal", 0),
    Sketcher.Constraint("Horizontal", 2),
    Sketcher.Constraint("Vertical", 3),
    Sketcher.Constraint("PointOnObject", 2, 2, -2),
    Sketcher.Constraint("DistanceX", 0, 1, 0, 2, 24.0),
    Sketcher.Constraint("DistanceX", 2, 2, 2, 1, 15.0),
    Sketcher.Constraint("DistanceY", 3, 2, 3, 1, 10.0),
    Sketcher.Constraint("DistanceY", -1, 1, 0, 2, 9.0),
])
revolution = body58.newObject("PartDesign::Revolution", "Revolution")
revolution.Profile = sketch23
revolution.ReferenceAxis = (sketch23, ["V_Axis"])
revolution.Angle = 360
body59 = doc.addObject("PartDesign::Body", "Body058")

# Sketch on XY plane
sketch24 = body59.newObject("Sketcher::SketchObject", "Sketch023")
sketch24.AttachmentSupport = (doc.getObject("XY_Plane058"), [""])
sketch24.MapMode = "FlatFace"
sketch24.addGeometry(Part.Circle(V(0, 0, 0), V(0, 0, 1), 10), False)
sketch24.addConstraint([
    Sketcher.Constraint("Coincident", 0, 3, -1, 1),
    Sketcher.Constraint("Diameter", 0, 20.0),
])
pad23 = body59.newObject("PartDesign::Pad", "Pad022")
pad23.Profile = sketch24
pad23.Length = 26
body60 = doc.addObject("PartDesign::Body", "Body059")

# Sketch on XZ plane
sketch25 = body60.newObject("Sketcher::SketchObject", "Sketch024")
sketch25.AttachmentSupport = (doc.getObject("XZ_Plane059"), [""])
sketch25.MapMode = "FlatFace"
add_polygon(sketch25, [(0, 15), (21, 15), (15, 22), (0, 22)])  # lines 0-3
sketch25.addConstraint([
    Sketcher.Constraint("Horizontal", 0),
    Sketcher.Constraint("Horizontal", 2),
    Sketcher.Constraint("Vertical", 3),
    Sketcher.Constraint("PointOnObject", 2, 2, -2),
    Sketcher.Constraint("DistanceX", 0, 1, 0, 2, 21.0),
    Sketcher.Constraint("DistanceX", 2, 2, 2, 1, 15.0),
    Sketcher.Constraint("DistanceY", 3, 2, 3, 1, 7.0),
    Sketcher.Constraint("DistanceY", -1, 1, 0, 2, 15.0),
])
revolution2 = body60.newObject("PartDesign::Revolution", "Revolution001")
revolution2.Profile = sketch25
revolution2.ReferenceAxis = (sketch25, ["V_Axis"])
revolution2.Angle = 360
doc.recompute()

boolean49 = body60.newObject("PartDesign::Boolean", "Boolean048")
boolean49.Type = "Cut"
boolean49.addObjects([body59])
doc.recompute()

boolean50 = body60.newObject("PartDesign::Boolean", "Boolean049")
boolean50.Type = "Cut"
boolean50.addObjects([body58])
body61 = doc.addObject("PartDesign::Body", "Body060")

# Sketch on XY plane
sketch26 = body61.newObject("Sketcher::SketchObject", "Sketch025")
sketch26.AttachmentSupport = (doc.getObject("XY_Plane060"), [""])
sketch26.MapMode = "FlatFace"
sketch26.AttachmentOffset = App.Placement(V(0, 0, 15), App.Rotation())
sketch26.addGeometry(Part.Circle(V(0, 0, 0), V(0, 0, 1), 20.5), False)
sketch26.addConstraint([
    Sketcher.Constraint("Coincident", 0, 3, -1, 1),
    Sketcher.Constraint("Diameter", 0, 41.0),
])
pad24 = body61.newObject("PartDesign::Pad", "Pad023")
pad24.Profile = sketch26
pad24.Length = 10
body62 = doc.addObject("PartDesign::Body", "Body061")

# Sketch on XY plane
sketch27 = body62.newObject("Sketcher::SketchObject", "Sketch026")
sketch27.AttachmentSupport = (doc.getObject("XY_Plane061"), [""])
sketch27.MapMode = "FlatFace"
sketch27.addGeometry(Part.Circle(V(0, 0, 0), V(0, 0, 1), 18.5), False)
sketch27.addConstraint([
    Sketcher.Constraint("Coincident", 0, 3, -1, 1),
    Sketcher.Constraint("Diameter", 0, 37.0),
])
pad25 = body62.newObject("PartDesign::Pad", "Pad024")
pad25.Profile = sketch27
pad25.Length = 20
body63 = doc.addObject("PartDesign::Body", "Body062")

# Sketch on XY plane
sketch28 = body63.newObject("Sketcher::SketchObject", "Sketch027")
sketch28.AttachmentSupport = (doc.getObject("XY_Plane062"), [""])
sketch28.MapMode = "FlatFace"
sketch28.addGeometry(Part.Circle(V(0, 0, 0), V(0, 0, 1), 22.1), False)
sketch28.addConstraint([
    Sketcher.Constraint("Coincident", 0, 3, -1, 1),
    Sketcher.Constraint("Diameter", 0, 44.2),
])
pad26 = body63.newObject("PartDesign::Pad", "Pad025")
pad26.Profile = sketch28
pad26.Length = 17
body64 = doc.addObject("PartDesign::Body", "Body063")

# Sketch on XY plane
sketch29 = body64.newObject("Sketcher::SketchObject", "Sketch028")
sketch29.AttachmentSupport = (doc.getObject("XY_Plane063"), [""])
sketch29.MapMode = "FlatFace"
sketch29.addGeometry(Part.Circle(V(0, 0, 0), V(0, 0, 1), 23.5), False)
sketch29.addConstraint([
    Sketcher.Constraint("Coincident", 0, 3, -1, 1),
    Sketcher.Constraint("Diameter", 0, 47.0),
])
pad27 = body64.newObject("PartDesign::Pad", "Pad026")
pad27.Profile = sketch29
pad27.Length = 17
doc.recompute()

boolean51 = body64.newObject("PartDesign::Boolean", "Boolean050")
boolean51.Type = "Cut"
boolean51.addObjects([body63])
body65 = doc.addObject("PartDesign::Body", "Body064")
doc.recompute()

body64.Placement = App.Placement(V(0, 0, 1.5), App.Rotation(V(0, 0, 1), 0))
boolean52 = body65.newObject("PartDesign::Boolean", "Boolean051")
boolean52.Type = "Fuse"
boolean52.addObjects([body64])
body66 = doc.addObject("PartDesign::Body", "Body065")

# Sketch on XY plane
sketch30 = body66.newObject("Sketcher::SketchObject", "Sketch029")
sketch30.AttachmentSupport = (doc.getObject("XY_Plane065"), [""])
sketch30.MapMode = "FlatFace"
sketch30.addGeometry(Part.Circle(V(0, 0, 0), V(0, 0, 1), 23.5), False)
sketch30.addConstraint([
    Sketcher.Constraint("Coincident", 0, 3, -1, 1),
    Sketcher.Constraint("Diameter", 0, 47.0),
])
pad28 = body66.newObject("PartDesign::Pad", "Pad027")
pad28.Profile = sketch30
pad28.Length = 20
doc.recompute()

boolean53 = body66.newObject("PartDesign::Boolean", "Boolean052")
boolean53.Type = "Cut"
boolean53.addObjects([body65])
body67 = doc.addObject("PartDesign::Body", "Body066")

# Sketch on XY plane
sketch31 = body67.newObject("Sketcher::SketchObject", "Sketch030")
sketch31.AttachmentSupport = (doc.getObject("XY_Plane066"), [""])
sketch31.MapMode = "FlatFace"
sketch31.addGeometry(Part.Circle(V(0, 0, 0), V(0, 0, 1), 22), False)
sketch31.addConstraint([
    Sketcher.Constraint("Coincident", 0, 3, -1, 1),
    Sketcher.Constraint("Diameter", 0, 44.0),
])
pad29 = body67.newObject("PartDesign::Pad", "Pad028")
pad29.Profile = sketch31
pad29.Length = 17
body68 = doc.addObject("PartDesign::Body", "Body067")

# Sketch on XY plane
sketch32 = body68.newObject("Sketcher::SketchObject", "Sketch031")
sketch32.AttachmentSupport = (doc.getObject("XY_Plane067"), [""])
sketch32.MapMode = "FlatFace"
sketch32.AttachmentOffset = App.Placement(V(0, 0, 0.5), App.Rotation())
sketch32.addGeometry(Part.Circle(V(0, 0, 0), V(0, 0, 1), 23.5), False)
sketch32.addConstraint([
    Sketcher.Constraint("Coincident", 0, 3, -1, 1),
    Sketcher.Constraint("Diameter", 0, 47.0),
])
pad30 = body68.newObject("PartDesign::Pad", "Pad029")
pad30.Profile = sketch32
pad30.Length = 10
doc.recompute()

boolean54 = body68.newObject("PartDesign::Boolean", "Boolean053")
boolean54.Type = "Cut"
boolean54.addObjects([body67])
body69 = doc.addObject("PartDesign::Body", "Body068")
doc.recompute()

body68.Placement = App.Placement(V(0, 0, 4.5), App.Rotation(V(0, 0, 1), 0))
boolean55 = body69.newObject("PartDesign::Boolean", "Boolean054")
boolean55.Type = "Fuse"
boolean55.addObjects([body68])
doc.recompute()

boolean56 = body69.newObject("PartDesign::Boolean", "Boolean055")
boolean56.Type = "Fuse"
boolean56.addObjects([body66])
doc.recompute()

boolean57 = body69.newObject("PartDesign::Boolean", "Boolean056")
boolean57.Type = "Cut"
boolean57.addObjects([body62])
doc.recompute()

boolean58 = body69.newObject("PartDesign::Boolean", "Boolean057")
boolean58.Type = "Cut"
boolean58.addObjects([body61])
doc.recompute()

fillet = body69.newObject("PartDesign::Fillet", "Fillet")
fillet.Base = (boolean58, edges_at(boolean58, [(-20.5, 0, 20)]))
fillet.Radius = 1
doc.recompute()

boolean59 = body69.newObject("PartDesign::Boolean", "Boolean058")
boolean59.Type = "Fuse"
boolean59.addObjects([body60])
doc.recompute()

boolean60 = body69.newObject("PartDesign::Boolean", "Boolean059")
boolean60.Type = "Cut"
boolean60.addObjects([body57])
doc.recompute()

chamfer = body69.newObject("PartDesign::Chamfer", "Chamfer")
chamfer.Base = (boolean60, edges_at(boolean60, [(-20, 0, 12)]))
chamfer.Size = 1.49
doc.recompute()

chamfer2 = body69.newObject("PartDesign::Chamfer", "Chamfer001")
chamfer2.Base = (chamfer, edges_at(chamfer, [(-20, 0, 0)]))
chamfer2.Size = 2
doc.recompute()

boolean61 = body69.newObject("PartDesign::Boolean", "Boolean060")
boolean61.Type = "Cut"
boolean61.addObjects([body56])
doc.recompute()

boolean62 = body69.newObject("PartDesign::Boolean", "Boolean061")
boolean62.Type = "Cut"
boolean62.addObjects([body16])
doc.recompute()

fillet2 = body69.newObject("PartDesign::Fillet", "Fillet001")
fillet2.Base = (boolean62, edges_at(boolean62, [(-15, 0, 22)]))
fillet2.Radius = 1.5
doc.recompute()

fillet3 = body69.newObject("PartDesign::Fillet", "Fillet002")
fillet3.Base = (fillet2, edges_at(fillet2, [(-22, 0, 0)]))
fillet3.Radius = 1.5
doc.recompute()

boolean63 = body69.newObject("PartDesign::Boolean", "Boolean062")
boolean63.Type = "Cut"
boolean63.addObjects([body])
body70 = doc.addObject("PartDesign::Body", "Body069")
doc.recompute()

body69.Placement = App.Placement(V(0, 0, 0), App.Rotation(V(1, 0, 0), 90))
boolean64 = body70.newObject("PartDesign::Boolean", "Boolean063")
boolean64.Type = "Fuse"
boolean64.addObjects([body69])
body71 = doc.addObject("PartDesign::Body", "Body070")
doc.recompute()

body70.Placement = App.Placement(V(98, 16, -51), App.Rotation(V(0, 0, 1), 0))
boolean65 = body71.newObject("PartDesign::Boolean", "Boolean064")
boolean65.Type = "Fuse"
boolean65.addObjects([body70])
mirroring.Visibility = False
mirroring2.Visibility = False
mirroring3.Visibility = False
mirroring4.Visibility = False
mirroring5.Visibility = False

doc.recompute()
